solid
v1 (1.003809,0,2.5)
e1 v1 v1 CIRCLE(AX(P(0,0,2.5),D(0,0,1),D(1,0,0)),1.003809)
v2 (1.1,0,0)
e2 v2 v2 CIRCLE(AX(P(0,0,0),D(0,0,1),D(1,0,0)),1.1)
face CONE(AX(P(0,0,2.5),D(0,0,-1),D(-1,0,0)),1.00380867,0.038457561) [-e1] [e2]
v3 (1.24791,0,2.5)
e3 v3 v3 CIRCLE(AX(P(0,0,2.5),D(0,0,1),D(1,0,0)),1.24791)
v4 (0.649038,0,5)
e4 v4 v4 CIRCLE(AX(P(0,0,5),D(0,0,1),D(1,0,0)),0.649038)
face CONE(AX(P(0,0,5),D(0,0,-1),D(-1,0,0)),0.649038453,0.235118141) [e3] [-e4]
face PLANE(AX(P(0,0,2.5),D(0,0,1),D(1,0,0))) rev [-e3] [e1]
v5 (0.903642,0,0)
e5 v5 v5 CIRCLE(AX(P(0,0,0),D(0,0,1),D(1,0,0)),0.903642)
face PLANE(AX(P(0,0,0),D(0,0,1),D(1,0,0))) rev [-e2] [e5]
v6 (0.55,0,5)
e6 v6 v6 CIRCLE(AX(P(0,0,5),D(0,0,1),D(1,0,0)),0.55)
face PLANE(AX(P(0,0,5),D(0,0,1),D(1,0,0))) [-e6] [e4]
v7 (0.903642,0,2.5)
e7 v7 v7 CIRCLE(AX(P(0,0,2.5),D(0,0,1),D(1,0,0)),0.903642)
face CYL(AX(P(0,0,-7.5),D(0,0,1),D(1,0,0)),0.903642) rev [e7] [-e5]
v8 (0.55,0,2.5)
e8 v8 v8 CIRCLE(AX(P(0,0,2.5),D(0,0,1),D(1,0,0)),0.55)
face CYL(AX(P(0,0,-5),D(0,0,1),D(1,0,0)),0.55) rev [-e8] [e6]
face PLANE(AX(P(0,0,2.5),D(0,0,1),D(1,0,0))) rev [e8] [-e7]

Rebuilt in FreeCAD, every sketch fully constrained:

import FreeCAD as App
import Part
import Sketcher
from FreeCAD import Vector
Q = App.Units.Quantity

doc = App.newDocument("Part")
body = doc.addObject("PartDesign::Body", "Body")

# Sketch on XY plane
sketch1 = body.newObject("Sketcher::SketchObject", "Sketch")
sketch1.AttachmentSupport = (doc.getObject("XY_Plane"), [""])
sketch1.MapMode = "FlatFace"
sketch1.addGeometry(Part.Circle(Vector(0, 0, 0), Vector(0, 0, 1), 1.1), False)
sketch1.addConstraint([
    Sketcher.Constraint("Coincident", 0, 3, -1, 1),
    Sketcher.Constraint("Diameter", 0, Q("2.2 mm")),
])

# Sketch on XY plane
sketch2 = body.newObject("Sketcher::SketchObject", "Sketch001")
sketch2.AttachmentSupport = (doc.getObject("XY_Plane"), [""])
sketch2.MapMode = "FlatFace"
sketch2.AttachmentOffset = App.Placement(Vector(0, 0, 2.5), App.Rotation())
sketch2.addGeometry(Part.Circle(Vector(0, 0, 0), Vector(0, 0, 1), 1.003809), False)
sketch2.addConstraint([
    Sketcher.Constraint("Coincident", 0, 3, -1, 1),
    Sketcher.Constraint("Diameter", 0, Q("2.007617 mm")),
])

additiveloft = body.newObject("PartDesign::AdditiveLoft", "AdditiveLoft")
additiveloft.Profile = sketch1
additiveloft.Sections = [sketch2]

# Sketch on XY plane
sketch3 = body.newObject("Sketcher::SketchObject", "Sketch002")
sketch3.AttachmentSupport = (doc.getObject("XY_Plane"), [""])
sketch3.MapMode = "FlatFace"
sketch3.AttachmentOffset = App.Placement(Vector(0, 0, 2.5), App.Rotation())
sketch3.addGeometry(Part.Circle(Vector(0, 0, 0), Vector(0, 0, 1), 0.903642), False)
sketch3.addConstraint([
    Sketcher.Constraint("Coincident", 0, 3, -1, 1),
    Sketcher.Constraint("Diameter", 0, Q("1.807285 mm")),
])
pocket1 = body.newObject("PartDesign::Pocket", "Pocket")
pocket1.Profile = sketch3
pocket1.Length = 10

# Sketch on XY plane
sketch4 = body.newObject("Sketcher::SketchObject", "Sketch003")
sketch4.AttachmentSupport = (doc.getObject("XY_Plane"), [""])
sketch4.MapMode = "FlatFace"
sketch4.AttachmentOffset = App.Placement(Vector(0, 0, 2.5), App.Rotation())
sketch4.addGeometry(Part.Circle(Vector(0, 0, 0), Vector(0, 0, 1), 1.24791), False)
sketch4.addConstraint([
    Sketcher.Constraint("Coincident", 0, 3, -1, 1),
    Sketcher.Constraint("Diameter", 0, Q("2.49582 mm")),
])

# Sketch on XY plane
sketch5 = body.newObject("Sketcher::SketchObject", "Sketch004")
sketch5.AttachmentSupport = (doc.getObject("XY_Plane"), [""])
sketch5.MapMode = "FlatFace"
sketch5.AttachmentOffset = App.Placement(Vector(0, 0, 5), App.Rotation())
sketch5.addGeometry(Part.Circle(Vector(0, 0, 0), Vector(0, 0, 1), 0.649038), False)
sketch5.addConstraint([
    Sketcher.Constraint("Coincident", 0, 3, -1, 1),
    Sketcher.Constraint("Diameter", 0, Q("1.298077 mm")),
])

additiveloft2 = body.newObject("PartDesign::AdditiveLoft", "AdditiveLoft001")
additiveloft2.Profile = sketch4
additiveloft2.Sections = [sketch5]

# Sketch on XY plane
sketch6 = body.newObject("Sketcher::SketchObject", "Sketch005")
sketch6.AttachmentSupport = (doc.getObject("XY_Plane"), [""])
sketch6.MapMode = "FlatFace"
sketch6.AttachmentOffset = App.Placement(Vector(0, 0, 5), App.Rotation())
sketch6.addGeometry(Part.Circle(Vector(0, 0, 0), Vector(0, 0, 1), 0.55), False)
sketch6.addConstraint([
    Sketcher.Constraint("Coincident", 0, 3, -1, 1),
    Sketcher.Constraint("Diameter", 0, Q("1.1 mm")),
])
pocket2 = body.newObject("PartDesign::Pocket", "Pocket001")
pocket2.Profile = sketch6
pocket2.Length = 10

doc.recompute()
